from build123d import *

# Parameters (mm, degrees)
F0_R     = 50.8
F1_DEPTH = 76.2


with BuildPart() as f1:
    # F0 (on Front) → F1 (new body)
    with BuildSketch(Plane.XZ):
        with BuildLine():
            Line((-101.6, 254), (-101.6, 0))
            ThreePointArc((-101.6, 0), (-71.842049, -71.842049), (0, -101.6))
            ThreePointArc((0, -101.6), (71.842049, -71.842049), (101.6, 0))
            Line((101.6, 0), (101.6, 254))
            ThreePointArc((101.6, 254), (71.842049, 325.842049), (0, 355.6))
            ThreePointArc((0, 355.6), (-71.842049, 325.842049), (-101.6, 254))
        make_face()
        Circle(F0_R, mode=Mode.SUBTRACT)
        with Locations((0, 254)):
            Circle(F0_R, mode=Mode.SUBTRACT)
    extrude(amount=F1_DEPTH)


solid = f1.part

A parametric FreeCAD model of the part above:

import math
import FreeCAD as App
import Part
import Sketcher
from FreeCAD import Vector
Q = App.Units.Quantity

doc = App.newDocument("Part")
body = doc.addObject("PartDesign::Body", "Body")

# Sketch on XZ plane
sketch1 = doc.addObject("Sketcher::SketchObject", "Sketch")
body.addObject(sketch1)
sketch1.AttachmentSupport = (doc.XZ_Plane, [""])
sketch1.MapMode = "FlatFace"
sketch1.addGeometry([
    Part.LineSegment(Vector(-102, 254, 0), Vector(-102, 0, 0)),  # 0
    Part.ArcOfCircle(Part.Circle(Vector(0, 0, 0), Vector(0, 0, 1), 102), math.radians(180), math.radians(270)),  # 1
    Part.ArcOfCircle(Part.Circle(Vector(0, 0, 0), Vector(0, 0, 1), 102), math.radians(-90), math.radians(0)),  # 2
    Part.LineSegment(Vector(102, 0, 0), Vector(102, 254, 0)),  # 3
    Part.ArcOfCircle(Part.Circle(Vector(0, 254, 0), Vector(0, 0, 1), 102), math.radians(0), math.radians(90)),  # 4
    Part.ArcOfCircle(Part.Circle(Vector(0, 254, 0), Vector(0, 0, 1), 102), math.radians(90), math.radians(180)),  # 5
    Part.Circle(Vector(0, 0, 0), Vector(0, 0, 1), 51),  # 6
    Part.Circle(Vector(0, 254, 0), Vector(0, 0, 1), 51),  # 7
], False)
sketch1.addConstraint([
    Sketcher.Constraint("Tangent", 0, 2, 1, 1),
    Sketcher.Constraint("Tangent", 1, 2, 2, 1),
    Sketcher.Constraint("Tangent", 2, 2, 3, 1),
    Sketcher.Constraint("Tangent", 3, 2, 4, 1),
    Sketcher.Constraint("Tangent", 4, 2, 5, 1),
    Sketcher.Constraint("Tangent", 5, 2, 0, 1),
    Sketcher.Constraint("Vertical", 0),
    Sketcher.Constraint("Vertical", 3),
    Sketcher.Constraint("Coincident", 1, 3, -1, 1),
    Sketcher.Constraint("Coincident", 6, 3, -1, 1),
    Sketcher.Constraint("Coincident", 7, 3, 4, 3),
    Sketcher.Constraint("Equal", 1, 2),
    Sketcher.Constraint("Equal", 2, 4),
    Sketcher.Constraint("Equal", 6, 7),
    Sketcher.Constraint("PointOnObject", 1, 2, -2),
    Sketcher.Constraint("PointOnObject", 4, 2, -2),
    Sketcher.Constraint("Diameter", 6, Q("4 in")),
    Sketcher.Constraint("Radius", 1, Q("4 in")),
    Sketcher.Constraint("DistanceY", 0, 2, 0, 1, Q("10 in")),
])
pad1 = doc.addObject("PartDesign::Pad", "Pad")
body.addObject(pad1)
pad1.Profile = sketch1
pad1.Length = Q("3 in")

doc.recompute()
